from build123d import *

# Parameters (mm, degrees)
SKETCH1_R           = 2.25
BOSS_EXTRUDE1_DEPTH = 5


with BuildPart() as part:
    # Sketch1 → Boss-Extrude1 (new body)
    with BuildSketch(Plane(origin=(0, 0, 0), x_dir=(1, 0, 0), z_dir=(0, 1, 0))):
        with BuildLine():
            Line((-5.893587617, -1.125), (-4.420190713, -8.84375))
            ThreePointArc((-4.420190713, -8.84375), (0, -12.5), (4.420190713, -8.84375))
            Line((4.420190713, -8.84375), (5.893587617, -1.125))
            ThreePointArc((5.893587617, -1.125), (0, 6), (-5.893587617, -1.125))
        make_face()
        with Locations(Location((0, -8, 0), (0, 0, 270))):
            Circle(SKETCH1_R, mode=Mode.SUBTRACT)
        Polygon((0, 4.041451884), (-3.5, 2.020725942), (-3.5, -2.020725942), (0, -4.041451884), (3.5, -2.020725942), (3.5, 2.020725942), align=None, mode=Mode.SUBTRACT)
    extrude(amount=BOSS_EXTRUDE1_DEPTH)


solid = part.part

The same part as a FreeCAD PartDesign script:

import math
import FreeCAD as App
import Part
import Sketcher

V = App.Vector
Q = App.Units.Quantity

doc = App.newDocument("Part")
params = doc.addObject("Spreadsheet::Sheet", "Params")
for row, (alias, value) in enumerate([
    ("sketch1_radius", "6 mm"),
    ("sketch1_diameter", "4.5 mm"),
    ("sketch1_radius2", "4.5 mm"),
    ("pad1_length", "5 mm"),
], start=1):
    params.set(f"A{row}", alias)
    params.set(f"B{row}", "=" + value)
    params.setAlias(f"B{row}", alias)

body = doc.addObject("PartDesign::Body", "Body")

# Sketch on XZ plane
sketch1 = doc.addObject("Sketcher::SketchObject", "Sketch")
body.addObject(sketch1)
sketch1.AttachmentSupport = (doc.XZ_Plane, [""])
sketch1.MapMode = "FlatFace"
sketch1.addGeometry([
    Part.LineSegment(V(-5.893588, 1.125, 0), V(-4.420191, 8.84375, 0)),  # 0
    Part.ArcOfCircle(Part.Circle(V(0, 8, 0), V(0, 0, 1), 4.5), math.radians(10.806923), math.radians(169.193077)),  # 1
    Part.LineSegment(V(4.420191, 8.84375, 0), V(5.893588, 1.125, 0)),  # 2
    Part.ArcOfCircle(Part.Circle(V(0, 0, 0), V(0, 0, 1), 6), math.radians(169.193077), math.radians(370.806923)),  # 3
    Part.Circle(V(0, 8, 0), V(0, 0, 1), 2.25),  # 4
    Part.LineSegment(V(-3.5, -2.020726, 0), V(0, -4.041452, 0)),  # 5
    Part.LineSegment(V(0, -4.041452, 0), V(3.5, -2.020726, 0)),  # 6
    Part.LineSegment(V(3.5, -2.020726, 0), V(3.5, 2.020726, 0)),  # 7
    Part.LineSegment(V(3.5, 2.020726, 0), V(0, 4.041452, 0)),  # 8
    Part.LineSegment(V(0, 4.041452, 0), V(-3.5, 2.020726, 0)),  # 9
    Part.LineSegment(V(-3.5, 2.020726, 0), V(-3.5, -2.020726, 0)),  # 10
], False)
sketch1.addConstraint([
    Sketcher.Constraint("Tangent", 0, 2, 1, 2),
    Sketcher.Constraint("Tangent", 1, 1, 2, 1),
    Sketcher.Constraint("Tangent", 2, 2, 3, 2),
    Sketcher.Constraint("Tangent", 3, 1, 0, 1),
    Sketcher.Constraint("Coincident", 5, 2, 6, 1),
    Sketcher.Constraint("Coincident", 6, 2, 7, 1),
    Sketcher.Constraint("Coincident", 7, 2, 8, 1),
    Sketcher.Constraint("Coincident", 8, 2, 9, 1),
    Sketcher.Constraint("Coincident", 9, 2, 10, 1),
    Sketcher.Constraint("Coincident", 10, 2, 5, 1),
    Sketcher.Constraint("Vertical", 7),
    Sketcher.Constraint("Vertical", 10),
    Sketcher.Constraint("Coincident", 3, 3, -1, 1),
    Sketcher.Constraint("Coincident", 4, 3, 1, 3),
    Sketcher.Constraint("Symmetric", 5, 2, 8, 2, -1, 1),
    Sketcher.Constraint("Symmetric", 6, 2, 9, 2, -1, 1),
    Sketcher.Constraint("PointOnObject", 1, 3, -2),
    Sketcher.Constraint("PointOnObject", 5, 2, -2),
    Sketcher.Constraint("Parallel", 5, 8),
    Sketcher.Constraint("Horizontal", 7, 2, 9, 2),
    Sketcher.Constraint("Radius", 3, 6.0),
    Sketcher.Constraint("Diameter", 4, 4.5),
    Sketcher.Constraint("Radius", 1, 4.5),
    Sketcher.Constraint("Angle", 5, Q("-30 deg")),
    Sketcher.Constraint("DistanceY", -1, 1, 1, 3, 8.0),
    Sketcher.Constraint("DistanceX", -1, 1, 6, 2, 3.5),
    Sketcher.Constraint("DistanceY", 7, 1, 7, 2, 4.041452),
])
sketch1.setExpression("Constraints[20]", "Params.sketch1_radius")
sketch1.setExpression("Constraints[21]", "Params.sketch1_diameter")
sketch1.setExpression("Constraints[22]", "Params.sketch1_radius2")
pad1 = doc.addObject("PartDesign::Pad", "Pad")
body.addObject(pad1)
pad1.Profile = sketch1
pad1.setExpression("Length", "Params.pad1_length")
pad1.Reversed = True

doc.recompute()
